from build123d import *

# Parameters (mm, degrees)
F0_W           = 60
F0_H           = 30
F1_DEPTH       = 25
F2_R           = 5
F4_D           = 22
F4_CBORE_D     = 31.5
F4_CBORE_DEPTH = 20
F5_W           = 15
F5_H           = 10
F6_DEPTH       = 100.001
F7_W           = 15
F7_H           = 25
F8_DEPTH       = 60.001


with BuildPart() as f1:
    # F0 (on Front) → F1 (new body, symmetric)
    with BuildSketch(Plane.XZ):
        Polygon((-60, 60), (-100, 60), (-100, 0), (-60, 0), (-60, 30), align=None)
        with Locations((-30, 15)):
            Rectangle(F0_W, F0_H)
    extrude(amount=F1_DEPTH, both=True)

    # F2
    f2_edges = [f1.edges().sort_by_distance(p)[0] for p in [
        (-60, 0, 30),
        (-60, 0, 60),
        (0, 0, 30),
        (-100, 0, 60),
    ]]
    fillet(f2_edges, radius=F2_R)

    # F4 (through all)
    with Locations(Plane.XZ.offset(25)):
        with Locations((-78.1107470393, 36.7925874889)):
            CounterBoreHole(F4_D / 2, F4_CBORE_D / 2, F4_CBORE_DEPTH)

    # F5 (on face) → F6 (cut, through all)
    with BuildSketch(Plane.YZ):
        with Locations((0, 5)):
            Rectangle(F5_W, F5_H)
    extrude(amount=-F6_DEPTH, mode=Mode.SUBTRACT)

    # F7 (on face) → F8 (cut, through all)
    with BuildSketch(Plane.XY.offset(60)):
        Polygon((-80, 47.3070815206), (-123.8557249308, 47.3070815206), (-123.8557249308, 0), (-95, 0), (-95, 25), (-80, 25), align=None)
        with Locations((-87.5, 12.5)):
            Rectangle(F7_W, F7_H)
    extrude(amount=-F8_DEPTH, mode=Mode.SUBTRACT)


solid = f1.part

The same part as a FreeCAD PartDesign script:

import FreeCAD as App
import Part
import Sketcher

V = App.Vector


def edges_at(feature, points):
    """Names of the edges that pass closest to the given points."""
    edges = feature.Shape.Edges
    near = lambda p: min(range(len(edges)), key=lambda i: edges[i].distToShape(Part.Vertex(*p))[0])
    return sorted({f"Edge{near(p) + 1}" for p in points})


def add_polygon(sketch, points):
    """Adds a closed chain of lines whose ends are joined by coincident constraints."""
    first, n = sketch.GeometryCount, len(points)
    for a, b in zip(points, points[1:] + points[:1]):
        sketch.addGeometry(Part.LineSegment(App.Vector(*a, 0), App.Vector(*b, 0)), False)
    for i in range(n):
        sketch.addConstraint(Sketcher.Constraint("Coincident", first + i, 2, first + (i + 1) % n, 1))

doc = App.newDocument("Part")
body = doc.addObject("PartDesign::Body", "Body")

# Sketch on XZ plane
sketch1 = doc.addObject("Sketcher::SketchObject", "Sketch")
body.addObject(sketch1)
sketch1.AttachmentSupport = (doc.XZ_Plane, [""])
sketch1.MapMode = "FlatFace"
add_polygon(sketch1, [(-60, 60), (-100, 60), (-100, 0), (0, 0), (0, 30), (-60, 30)])  # lines 0-5
sketch1.addConstraint(Sketcher.Constraint("Horizontal", 0))
sketch1.addConstraint(Sketcher.Constraint("Vertical", 1))
sketch1.addConstraint(Sketcher.Constraint("Horizontal", 2))
sketch1.addConstraint(Sketcher.Constraint("Vertical", 3))
sketch1.addConstraint(Sketcher.Constraint("Horizontal", 4))
sketch1.addConstraint(Sketcher.Constraint("Vertical", 5))
sketch1.addConstraint(Sketcher.Constraint("Coincident", 2, 2, -1, 1))
sketch1.addConstraint(Sketcher.Constraint("Equal", 4, 1))
sketch1.addConstraint(Sketcher.Constraint("Equal", 3, 5))
sketch1.addConstraint(Sketcher.Constraint("DistanceX", 0, 2, 0, 1, 40.0))
sketch1.addConstraint(Sketcher.Constraint("DistanceX", 2, 1, 2, 2, 100.0))
pad1 = doc.addObject("PartDesign::Pad", "Pad")
body.addObject(pad1)
pad1.Profile = sketch1
pad1.Length = 50
pad1.Midplane = True
doc.recompute()

fillet = doc.addObject("PartDesign::Fillet", "Fillet")
body.addObject(fillet)
fillet.Base = (pad1, edges_at(pad1, [
    (-60, 0, 30),
    (-60, 0, 60),
    (0, 0, 30),
    (-100, 0, 60),
]))
fillet.Radius = 5

# Sketch on XZ plane
sketch2 = doc.addObject("Sketcher::SketchObject", "Sketch001")
body.addObject(sketch2)
sketch2.AttachmentSupport = (doc.XZ_Plane, [""])
sketch2.MapMode = "FlatFace"
sketch2.AttachmentOffset = App.Placement(V(0, 0, 25), App.Rotation())
sketch2.addGeometry(Part.Circle(V(-78, 37, 0), V(0, 0, 1), 11), False)
sketch2.addConstraint(Sketcher.Constraint("Diameter", 0, 22.0))
sketch2.addConstraint(Sketcher.Constraint("DistanceX", 0, 3, -1, 1, 78.110747))
sketch2.addConstraint(Sketcher.Constraint("DistanceY", -1, 1, 0, 3, 36.792587))
doc.recompute()
hole = doc.addObject("PartDesign::Hole", "Hole")
body.addObject(hole)
hole.Profile = sketch2
hole.ThreadType = "None"
hole.Diameter = 22
hole.DepthType = "ThroughAll"
hole.HoleCutType = "Counterbore"
hole.HoleCutDiameter = 31.5
hole.HoleCutDepth = 20

# Sketch on YZ plane
sketch3 = doc.addObject("Sketcher::SketchObject", "Sketch002")
body.addObject(sketch3)
sketch3.AttachmentSupport = (doc.YZ_Plane, [""])
sketch3.MapMode = "FlatFace"
add_polygon(sketch3, [(-8, 10), (-8, 0), (8, 0), (8, 10)])  # lines 0-3
sketch3.addConstraint(Sketcher.Constraint("Vertical", 0))
sketch3.addConstraint(Sketcher.Constraint("Horizontal", 1))
sketch3.addConstraint(Sketcher.Constraint("Vertical", 2))
sketch3.addConstraint(Sketcher.Constraint("Horizontal", 3))
sketch3.addConstraint(Sketcher.Constraint("Symmetric", 0, 2, 1, 2, -1, 1))
sketch3.addConstraint(Sketcher.Constraint("DistanceX", 1, 1, 1, 2, 15.0))
sketch3.addConstraint(Sketcher.Constraint("DistanceY", 0, 2, 0, 1, 10.0))
pocket1 = doc.addObject("PartDesign::Pocket", "Pocket")
body.addObject(pocket1)
pocket1.Profile = sketch3
pocket1.Type = "ThroughAll"

# Sketch on XY plane
sketch4 = doc.addObject("Sketcher::SketchObject", "Sketch003")
body.addObject(sketch4)
sketch4.AttachmentSupport = (doc.XY_Plane, [""])
sketch4.MapMode = "FlatFace"
sketch4.AttachmentOffset = App.Placement(V(0, 0, 60), App.Rotation())
add_polygon(sketch4, [(-80, 47), (-124, 47), (-124, 0), (-80, 0)])  # lines 0-3
sketch4.addConstraint(Sketcher.Constraint("Horizontal", 0))
sketch4.addConstraint(Sketcher.Constraint("Vertical", 1))
sketch4.addConstraint(Sketcher.Constraint("Horizontal", 2))
sketch4.addConstraint(Sketcher.Constraint("Vertical", 3))
sketch4.addConstraint(Sketcher.Constraint("PointOnObject", 1, 2, -1))
sketch4.addConstraint(Sketcher.Constraint("DistanceX", 2, 2, -1, 1, 80.0))
sketch4.addConstraint(Sketcher.Constraint("DistanceY", 1, 2, 1, 1, 47.307082))
sketch4.addConstraint(Sketcher.Constraint("DistanceX", 0, 2, 0, 1, 43.855725))
pocket2 = doc.addObject("PartDesign::Pocket", "Pocket001")
body.addObject(pocket2)
pocket2.Profile = sketch4
pocket2.Type = "ThroughAll"

doc.recompute()
